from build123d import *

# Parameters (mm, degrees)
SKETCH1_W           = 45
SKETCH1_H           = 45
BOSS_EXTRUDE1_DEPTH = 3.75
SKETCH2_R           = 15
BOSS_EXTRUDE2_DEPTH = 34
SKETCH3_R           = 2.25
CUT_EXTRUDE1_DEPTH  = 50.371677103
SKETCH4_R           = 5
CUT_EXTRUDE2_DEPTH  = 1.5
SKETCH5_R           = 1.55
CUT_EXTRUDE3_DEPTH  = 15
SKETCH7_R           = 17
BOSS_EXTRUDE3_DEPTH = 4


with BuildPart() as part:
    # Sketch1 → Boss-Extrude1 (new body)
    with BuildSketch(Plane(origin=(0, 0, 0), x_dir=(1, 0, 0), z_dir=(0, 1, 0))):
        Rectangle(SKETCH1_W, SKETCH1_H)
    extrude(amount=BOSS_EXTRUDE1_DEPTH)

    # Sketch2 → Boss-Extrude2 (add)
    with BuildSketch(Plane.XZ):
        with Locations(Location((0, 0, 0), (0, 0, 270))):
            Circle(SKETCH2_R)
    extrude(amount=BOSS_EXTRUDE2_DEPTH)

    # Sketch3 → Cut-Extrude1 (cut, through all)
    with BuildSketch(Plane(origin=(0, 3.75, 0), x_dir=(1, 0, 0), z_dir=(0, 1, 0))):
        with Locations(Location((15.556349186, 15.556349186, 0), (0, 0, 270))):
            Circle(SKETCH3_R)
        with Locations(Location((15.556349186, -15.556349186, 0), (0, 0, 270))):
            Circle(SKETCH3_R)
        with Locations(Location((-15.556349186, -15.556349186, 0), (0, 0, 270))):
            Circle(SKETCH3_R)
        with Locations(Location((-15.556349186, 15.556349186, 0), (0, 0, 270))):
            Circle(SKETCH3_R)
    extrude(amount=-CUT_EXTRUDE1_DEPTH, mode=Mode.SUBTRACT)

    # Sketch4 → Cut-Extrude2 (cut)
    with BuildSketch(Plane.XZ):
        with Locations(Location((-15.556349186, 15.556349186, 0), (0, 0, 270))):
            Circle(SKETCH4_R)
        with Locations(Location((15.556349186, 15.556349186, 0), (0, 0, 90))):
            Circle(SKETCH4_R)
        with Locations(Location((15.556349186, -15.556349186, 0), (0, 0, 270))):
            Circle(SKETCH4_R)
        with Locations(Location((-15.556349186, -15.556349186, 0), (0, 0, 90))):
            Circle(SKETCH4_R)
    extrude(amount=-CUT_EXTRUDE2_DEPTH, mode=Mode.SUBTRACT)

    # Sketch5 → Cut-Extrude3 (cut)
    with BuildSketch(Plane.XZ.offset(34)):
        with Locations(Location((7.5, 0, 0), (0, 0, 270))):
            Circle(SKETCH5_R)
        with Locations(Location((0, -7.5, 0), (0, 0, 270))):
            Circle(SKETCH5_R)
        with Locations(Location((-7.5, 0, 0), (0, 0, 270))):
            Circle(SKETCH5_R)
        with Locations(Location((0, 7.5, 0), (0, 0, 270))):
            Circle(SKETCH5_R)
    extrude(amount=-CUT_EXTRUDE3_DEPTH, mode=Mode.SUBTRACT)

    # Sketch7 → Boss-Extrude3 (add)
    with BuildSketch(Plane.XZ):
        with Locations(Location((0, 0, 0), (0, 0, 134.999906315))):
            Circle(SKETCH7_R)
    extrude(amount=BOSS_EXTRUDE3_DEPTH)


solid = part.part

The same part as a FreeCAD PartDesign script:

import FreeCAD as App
import Part
import Sketcher

doc = App.newDocument("Part")
body = doc.addObject("PartDesign::Body", "Body")

# Sketch on XZ plane
sketch1 = body.newObject("Sketcher::SketchObject", "Sketch")
sketch1.AttachmentSupport = (doc.getObject("XZ_Plane"), [""])
sketch1.MapMode = "FlatFace"
sketch1.addGeometry([
    Part.LineSegment(App.Vector(-22, -22, 0), App.Vector(-22, 22, 0)),
    Part.LineSegment(App.Vector(-22, 22, 0), App.Vector(22, 22, 0)),
    Part.LineSegment(App.Vector(22, 22, 0), App.Vector(22, -22, 0)),
    Part.LineSegment(App.Vector(22, -22, 0), App.Vector(-22, -22, 0)),
], False)
sketch1.addConstraint([
    Sketcher.Constraint("Coincident", 0, 2, 1, 1),
    Sketcher.Constraint("Coincident", 1, 2, 2, 1),
    Sketcher.Constraint("Coincident", 2, 2, 3, 1),
    Sketcher.Constraint("Coincident", 3, 2, 0, 1),
    Sketcher.Constraint("Vertical", 0),
    Sketcher.Constraint("Horizontal", 1),
    Sketcher.Constraint("Vertical", 2),
    Sketcher.Constraint("Horizontal", 3),
    Sketcher.Constraint("Symmetric", 0, 2, 2, 2, -1, 1),
    Sketcher.Constraint("Equal", 3, 0),
    Sketcher.Constraint("DistanceX", 1, 1, 1, 2, 45.0),
])
pad1 = body.newObject("PartDesign::Pad", "Pad")
pad1.Profile = sketch1
pad1.Length = 3.75
pad1.Reversed = True

# Sketch on XZ plane
sketch2 = body.newObject("Sketcher::SketchObject", "Sketch001")
sketch2.AttachmentSupport = (doc.getObject("XZ_Plane"), [""])
sketch2.MapMode = "FlatFace"
sketch2.addGeometry(Part.Circle(App.Vector(0, 0, 0), App.Vector(0, 0, 1), 15), False)
sketch2.addConstraint([
    Sketcher.Constraint("Coincident", 0, 3, -1, 1),
    Sketcher.Constraint("Diameter", 0, 30.0),
])
pad2 = body.newObject("PartDesign::Pad", "Pad001")
pad2.Profile = sketch2
pad2.Length = 34

# Sketch on XZ plane
sketch3 = body.newObject("Sketcher::SketchObject", "Sketch002")
sketch3.AttachmentSupport = (doc.getObject("XZ_Plane"), [""])
sketch3.MapMode = "FlatFace"
sketch3.AttachmentOffset = App.Placement(App.Vector(0, 0, -3.75), App.Rotation())
sketch3.addGeometry([
    Part.Circle(App.Vector(15.6, -15.6, 0), App.Vector(0, 0, 1), 2.2),
    Part.Circle(App.Vector(15.6, 15.6, 0), App.Vector(0, 0, 1), 2.2),
    Part.Circle(App.Vector(-15.6, 15.6, 0), App.Vector(0, 0, 1), 2.2),
    Part.Circle(App.Vector(-15.6, -15.6, 0), App.Vector(0, 0, 1), 2.2),
], False)
sketch3.addConstraint([
    Sketcher.Constraint("Equal", 0, 1),
    Sketcher.Constraint("Equal", 1, 2),
    Sketcher.Constraint("Equal", 2, 3),
    Sketcher.Constraint("Symmetric", 0, 3, 2, 3, -1, 1),
    Sketcher.Constraint("Symmetric", 1, 3, 3, 3, -1, 1),
    Sketcher.Constraint("Symmetric", 1, 3, 2, 3, -2),
    Sketcher.Constraint("Diameter", 0, 4.5),
    Sketcher.Constraint("DistanceY", 0, 3, 1, 3, 31.112698),
    Sketcher.Constraint("DistanceX", 2, 3, 1, 3, 31.112698),
])
pocket1 = body.newObject("PartDesign::Pocket", "Pocket")
pocket1.Profile = sketch3
pocket1.Type = "ThroughAll"
pocket1.Reversed = True

# Sketch on XZ plane
sketch4 = body.newObject("Sketcher::SketchObject", "Sketch003")
sketch4.AttachmentSupport = (doc.getObject("XZ_Plane"), [""])
sketch4.MapMode = "FlatFace"
sketch4.addGeometry([
    Part.Circle(App.Vector(-16, 16, 0), App.Vector(0, 0, 1), 5),
    Part.Circle(App.Vector(16, 16, 0), App.Vector(0, 0, 1), 5),
    Part.Circle(App.Vector(16, -16, 0), App.Vector(0, 0, 1), 5),
    Part.Circle(App.Vector(-16, -16, 0), App.Vector(0, 0, 1), 5),
], False)
sketch4.addConstraint([
    Sketcher.Constraint("Equal", 0, 1),
    Sketcher.Constraint("Equal", 1, 2),
    Sketcher.Constraint("Equal", 2, 3),
    Sketcher.Constraint("Symmetric", 0, 3, 2, 3, -1, 1),
    Sketcher.Constraint("Symmetric", 1, 3, 3, 3, -1, 1),
    Sketcher.Constraint("Symmetric", 0, 3, 1, 3, -2),
    Sketcher.Constraint("Diameter", 0, 10.0),
    Sketcher.Constraint("DistanceX", 0, 3, 1, 3, 31.112698),
    Sketcher.Constraint("DistanceY", 2, 3, 1, 3, 31.112698),
])
pocket2 = body.newObject("PartDesign::Pocket", "Pocket001")
pocket2.Profile = sketch4
pocket2.Length = 1.5

# Sketch on XZ plane
sketch5 = body.newObject("Sketcher::SketchObject", "Sketch004")
sketch5.AttachmentSupport = (doc.getObject("XZ_Plane"), [""])
sketch5.MapMode = "FlatFace"
sketch5.AttachmentOffset = App.Placement(App.Vector(0, 0, 34), App.Rotation())
sketch5.addGeometry([
    Part.Circle(App.Vector(7.5, 0, 0), App.Vector(0, 0, 1), 1.6),
    Part.Circle(App.Vector(0, -7.5, 0), App.Vector(0, 0, 1), 1.6),
    Part.Circle(App.Vector(-7.5, 0, 0), App.Vector(0, 0, 1), 1.6),
    Part.Circle(App.Vector(0, 7.5, 0), App.Vector(0, 0, 1), 1.6),
], False)
sketch5.addConstraint([
    Sketcher.Constraint("Equal", 0, 1),
    Sketcher.Constraint("Equal", 1, 2),
    Sketcher.Constraint("Equal", 2, 3),
    Sketcher.Constraint("Symmetric", 0, 3, 2, 3, -1, 1),
    Sketcher.Constraint("Symmetric", 1, 3, 3, 3, -1, 1),
    Sketcher.Constraint("PointOnObject", 0, 3, -1),
    Sketcher.Constraint("PointOnObject", 1, 3, -2),
    Sketcher.Constraint("Diameter", 0, 3.1),
    Sketcher.Constraint("DistanceX", 2, 3, 0, 3, 15.0),
    Sketcher.Constraint("DistanceY", 1, 3, 3, 3, 15.0),
])
pocket3 = body.newObject("PartDesign::Pocket", "Pocket002")
pocket3.Profile = sketch5
pocket3.Length = 15

# Sketch on XZ plane
sketch6 = body.newObject("Sketcher::SketchObject", "Sketch005")
sketch6.AttachmentSupport = (doc.getObject("XZ_Plane"), [""])
sketch6.MapMode = "FlatFace"
sketch6.addGeometry(Part.Circle(App.Vector(0, 0, 0), App.Vector(0, 0, 1), 17), False)
sketch6.addConstraint([
    Sketcher.Constraint("Coincident", 0, 3, -1, 1),
    Sketcher.Constraint("Diameter", 0, 34.0),
])
pad3 = body.newObject("PartDesign::Pad", "Pad002")
pad3.Profile = sketch6
pad3.Length = 4

doc.recompute()
